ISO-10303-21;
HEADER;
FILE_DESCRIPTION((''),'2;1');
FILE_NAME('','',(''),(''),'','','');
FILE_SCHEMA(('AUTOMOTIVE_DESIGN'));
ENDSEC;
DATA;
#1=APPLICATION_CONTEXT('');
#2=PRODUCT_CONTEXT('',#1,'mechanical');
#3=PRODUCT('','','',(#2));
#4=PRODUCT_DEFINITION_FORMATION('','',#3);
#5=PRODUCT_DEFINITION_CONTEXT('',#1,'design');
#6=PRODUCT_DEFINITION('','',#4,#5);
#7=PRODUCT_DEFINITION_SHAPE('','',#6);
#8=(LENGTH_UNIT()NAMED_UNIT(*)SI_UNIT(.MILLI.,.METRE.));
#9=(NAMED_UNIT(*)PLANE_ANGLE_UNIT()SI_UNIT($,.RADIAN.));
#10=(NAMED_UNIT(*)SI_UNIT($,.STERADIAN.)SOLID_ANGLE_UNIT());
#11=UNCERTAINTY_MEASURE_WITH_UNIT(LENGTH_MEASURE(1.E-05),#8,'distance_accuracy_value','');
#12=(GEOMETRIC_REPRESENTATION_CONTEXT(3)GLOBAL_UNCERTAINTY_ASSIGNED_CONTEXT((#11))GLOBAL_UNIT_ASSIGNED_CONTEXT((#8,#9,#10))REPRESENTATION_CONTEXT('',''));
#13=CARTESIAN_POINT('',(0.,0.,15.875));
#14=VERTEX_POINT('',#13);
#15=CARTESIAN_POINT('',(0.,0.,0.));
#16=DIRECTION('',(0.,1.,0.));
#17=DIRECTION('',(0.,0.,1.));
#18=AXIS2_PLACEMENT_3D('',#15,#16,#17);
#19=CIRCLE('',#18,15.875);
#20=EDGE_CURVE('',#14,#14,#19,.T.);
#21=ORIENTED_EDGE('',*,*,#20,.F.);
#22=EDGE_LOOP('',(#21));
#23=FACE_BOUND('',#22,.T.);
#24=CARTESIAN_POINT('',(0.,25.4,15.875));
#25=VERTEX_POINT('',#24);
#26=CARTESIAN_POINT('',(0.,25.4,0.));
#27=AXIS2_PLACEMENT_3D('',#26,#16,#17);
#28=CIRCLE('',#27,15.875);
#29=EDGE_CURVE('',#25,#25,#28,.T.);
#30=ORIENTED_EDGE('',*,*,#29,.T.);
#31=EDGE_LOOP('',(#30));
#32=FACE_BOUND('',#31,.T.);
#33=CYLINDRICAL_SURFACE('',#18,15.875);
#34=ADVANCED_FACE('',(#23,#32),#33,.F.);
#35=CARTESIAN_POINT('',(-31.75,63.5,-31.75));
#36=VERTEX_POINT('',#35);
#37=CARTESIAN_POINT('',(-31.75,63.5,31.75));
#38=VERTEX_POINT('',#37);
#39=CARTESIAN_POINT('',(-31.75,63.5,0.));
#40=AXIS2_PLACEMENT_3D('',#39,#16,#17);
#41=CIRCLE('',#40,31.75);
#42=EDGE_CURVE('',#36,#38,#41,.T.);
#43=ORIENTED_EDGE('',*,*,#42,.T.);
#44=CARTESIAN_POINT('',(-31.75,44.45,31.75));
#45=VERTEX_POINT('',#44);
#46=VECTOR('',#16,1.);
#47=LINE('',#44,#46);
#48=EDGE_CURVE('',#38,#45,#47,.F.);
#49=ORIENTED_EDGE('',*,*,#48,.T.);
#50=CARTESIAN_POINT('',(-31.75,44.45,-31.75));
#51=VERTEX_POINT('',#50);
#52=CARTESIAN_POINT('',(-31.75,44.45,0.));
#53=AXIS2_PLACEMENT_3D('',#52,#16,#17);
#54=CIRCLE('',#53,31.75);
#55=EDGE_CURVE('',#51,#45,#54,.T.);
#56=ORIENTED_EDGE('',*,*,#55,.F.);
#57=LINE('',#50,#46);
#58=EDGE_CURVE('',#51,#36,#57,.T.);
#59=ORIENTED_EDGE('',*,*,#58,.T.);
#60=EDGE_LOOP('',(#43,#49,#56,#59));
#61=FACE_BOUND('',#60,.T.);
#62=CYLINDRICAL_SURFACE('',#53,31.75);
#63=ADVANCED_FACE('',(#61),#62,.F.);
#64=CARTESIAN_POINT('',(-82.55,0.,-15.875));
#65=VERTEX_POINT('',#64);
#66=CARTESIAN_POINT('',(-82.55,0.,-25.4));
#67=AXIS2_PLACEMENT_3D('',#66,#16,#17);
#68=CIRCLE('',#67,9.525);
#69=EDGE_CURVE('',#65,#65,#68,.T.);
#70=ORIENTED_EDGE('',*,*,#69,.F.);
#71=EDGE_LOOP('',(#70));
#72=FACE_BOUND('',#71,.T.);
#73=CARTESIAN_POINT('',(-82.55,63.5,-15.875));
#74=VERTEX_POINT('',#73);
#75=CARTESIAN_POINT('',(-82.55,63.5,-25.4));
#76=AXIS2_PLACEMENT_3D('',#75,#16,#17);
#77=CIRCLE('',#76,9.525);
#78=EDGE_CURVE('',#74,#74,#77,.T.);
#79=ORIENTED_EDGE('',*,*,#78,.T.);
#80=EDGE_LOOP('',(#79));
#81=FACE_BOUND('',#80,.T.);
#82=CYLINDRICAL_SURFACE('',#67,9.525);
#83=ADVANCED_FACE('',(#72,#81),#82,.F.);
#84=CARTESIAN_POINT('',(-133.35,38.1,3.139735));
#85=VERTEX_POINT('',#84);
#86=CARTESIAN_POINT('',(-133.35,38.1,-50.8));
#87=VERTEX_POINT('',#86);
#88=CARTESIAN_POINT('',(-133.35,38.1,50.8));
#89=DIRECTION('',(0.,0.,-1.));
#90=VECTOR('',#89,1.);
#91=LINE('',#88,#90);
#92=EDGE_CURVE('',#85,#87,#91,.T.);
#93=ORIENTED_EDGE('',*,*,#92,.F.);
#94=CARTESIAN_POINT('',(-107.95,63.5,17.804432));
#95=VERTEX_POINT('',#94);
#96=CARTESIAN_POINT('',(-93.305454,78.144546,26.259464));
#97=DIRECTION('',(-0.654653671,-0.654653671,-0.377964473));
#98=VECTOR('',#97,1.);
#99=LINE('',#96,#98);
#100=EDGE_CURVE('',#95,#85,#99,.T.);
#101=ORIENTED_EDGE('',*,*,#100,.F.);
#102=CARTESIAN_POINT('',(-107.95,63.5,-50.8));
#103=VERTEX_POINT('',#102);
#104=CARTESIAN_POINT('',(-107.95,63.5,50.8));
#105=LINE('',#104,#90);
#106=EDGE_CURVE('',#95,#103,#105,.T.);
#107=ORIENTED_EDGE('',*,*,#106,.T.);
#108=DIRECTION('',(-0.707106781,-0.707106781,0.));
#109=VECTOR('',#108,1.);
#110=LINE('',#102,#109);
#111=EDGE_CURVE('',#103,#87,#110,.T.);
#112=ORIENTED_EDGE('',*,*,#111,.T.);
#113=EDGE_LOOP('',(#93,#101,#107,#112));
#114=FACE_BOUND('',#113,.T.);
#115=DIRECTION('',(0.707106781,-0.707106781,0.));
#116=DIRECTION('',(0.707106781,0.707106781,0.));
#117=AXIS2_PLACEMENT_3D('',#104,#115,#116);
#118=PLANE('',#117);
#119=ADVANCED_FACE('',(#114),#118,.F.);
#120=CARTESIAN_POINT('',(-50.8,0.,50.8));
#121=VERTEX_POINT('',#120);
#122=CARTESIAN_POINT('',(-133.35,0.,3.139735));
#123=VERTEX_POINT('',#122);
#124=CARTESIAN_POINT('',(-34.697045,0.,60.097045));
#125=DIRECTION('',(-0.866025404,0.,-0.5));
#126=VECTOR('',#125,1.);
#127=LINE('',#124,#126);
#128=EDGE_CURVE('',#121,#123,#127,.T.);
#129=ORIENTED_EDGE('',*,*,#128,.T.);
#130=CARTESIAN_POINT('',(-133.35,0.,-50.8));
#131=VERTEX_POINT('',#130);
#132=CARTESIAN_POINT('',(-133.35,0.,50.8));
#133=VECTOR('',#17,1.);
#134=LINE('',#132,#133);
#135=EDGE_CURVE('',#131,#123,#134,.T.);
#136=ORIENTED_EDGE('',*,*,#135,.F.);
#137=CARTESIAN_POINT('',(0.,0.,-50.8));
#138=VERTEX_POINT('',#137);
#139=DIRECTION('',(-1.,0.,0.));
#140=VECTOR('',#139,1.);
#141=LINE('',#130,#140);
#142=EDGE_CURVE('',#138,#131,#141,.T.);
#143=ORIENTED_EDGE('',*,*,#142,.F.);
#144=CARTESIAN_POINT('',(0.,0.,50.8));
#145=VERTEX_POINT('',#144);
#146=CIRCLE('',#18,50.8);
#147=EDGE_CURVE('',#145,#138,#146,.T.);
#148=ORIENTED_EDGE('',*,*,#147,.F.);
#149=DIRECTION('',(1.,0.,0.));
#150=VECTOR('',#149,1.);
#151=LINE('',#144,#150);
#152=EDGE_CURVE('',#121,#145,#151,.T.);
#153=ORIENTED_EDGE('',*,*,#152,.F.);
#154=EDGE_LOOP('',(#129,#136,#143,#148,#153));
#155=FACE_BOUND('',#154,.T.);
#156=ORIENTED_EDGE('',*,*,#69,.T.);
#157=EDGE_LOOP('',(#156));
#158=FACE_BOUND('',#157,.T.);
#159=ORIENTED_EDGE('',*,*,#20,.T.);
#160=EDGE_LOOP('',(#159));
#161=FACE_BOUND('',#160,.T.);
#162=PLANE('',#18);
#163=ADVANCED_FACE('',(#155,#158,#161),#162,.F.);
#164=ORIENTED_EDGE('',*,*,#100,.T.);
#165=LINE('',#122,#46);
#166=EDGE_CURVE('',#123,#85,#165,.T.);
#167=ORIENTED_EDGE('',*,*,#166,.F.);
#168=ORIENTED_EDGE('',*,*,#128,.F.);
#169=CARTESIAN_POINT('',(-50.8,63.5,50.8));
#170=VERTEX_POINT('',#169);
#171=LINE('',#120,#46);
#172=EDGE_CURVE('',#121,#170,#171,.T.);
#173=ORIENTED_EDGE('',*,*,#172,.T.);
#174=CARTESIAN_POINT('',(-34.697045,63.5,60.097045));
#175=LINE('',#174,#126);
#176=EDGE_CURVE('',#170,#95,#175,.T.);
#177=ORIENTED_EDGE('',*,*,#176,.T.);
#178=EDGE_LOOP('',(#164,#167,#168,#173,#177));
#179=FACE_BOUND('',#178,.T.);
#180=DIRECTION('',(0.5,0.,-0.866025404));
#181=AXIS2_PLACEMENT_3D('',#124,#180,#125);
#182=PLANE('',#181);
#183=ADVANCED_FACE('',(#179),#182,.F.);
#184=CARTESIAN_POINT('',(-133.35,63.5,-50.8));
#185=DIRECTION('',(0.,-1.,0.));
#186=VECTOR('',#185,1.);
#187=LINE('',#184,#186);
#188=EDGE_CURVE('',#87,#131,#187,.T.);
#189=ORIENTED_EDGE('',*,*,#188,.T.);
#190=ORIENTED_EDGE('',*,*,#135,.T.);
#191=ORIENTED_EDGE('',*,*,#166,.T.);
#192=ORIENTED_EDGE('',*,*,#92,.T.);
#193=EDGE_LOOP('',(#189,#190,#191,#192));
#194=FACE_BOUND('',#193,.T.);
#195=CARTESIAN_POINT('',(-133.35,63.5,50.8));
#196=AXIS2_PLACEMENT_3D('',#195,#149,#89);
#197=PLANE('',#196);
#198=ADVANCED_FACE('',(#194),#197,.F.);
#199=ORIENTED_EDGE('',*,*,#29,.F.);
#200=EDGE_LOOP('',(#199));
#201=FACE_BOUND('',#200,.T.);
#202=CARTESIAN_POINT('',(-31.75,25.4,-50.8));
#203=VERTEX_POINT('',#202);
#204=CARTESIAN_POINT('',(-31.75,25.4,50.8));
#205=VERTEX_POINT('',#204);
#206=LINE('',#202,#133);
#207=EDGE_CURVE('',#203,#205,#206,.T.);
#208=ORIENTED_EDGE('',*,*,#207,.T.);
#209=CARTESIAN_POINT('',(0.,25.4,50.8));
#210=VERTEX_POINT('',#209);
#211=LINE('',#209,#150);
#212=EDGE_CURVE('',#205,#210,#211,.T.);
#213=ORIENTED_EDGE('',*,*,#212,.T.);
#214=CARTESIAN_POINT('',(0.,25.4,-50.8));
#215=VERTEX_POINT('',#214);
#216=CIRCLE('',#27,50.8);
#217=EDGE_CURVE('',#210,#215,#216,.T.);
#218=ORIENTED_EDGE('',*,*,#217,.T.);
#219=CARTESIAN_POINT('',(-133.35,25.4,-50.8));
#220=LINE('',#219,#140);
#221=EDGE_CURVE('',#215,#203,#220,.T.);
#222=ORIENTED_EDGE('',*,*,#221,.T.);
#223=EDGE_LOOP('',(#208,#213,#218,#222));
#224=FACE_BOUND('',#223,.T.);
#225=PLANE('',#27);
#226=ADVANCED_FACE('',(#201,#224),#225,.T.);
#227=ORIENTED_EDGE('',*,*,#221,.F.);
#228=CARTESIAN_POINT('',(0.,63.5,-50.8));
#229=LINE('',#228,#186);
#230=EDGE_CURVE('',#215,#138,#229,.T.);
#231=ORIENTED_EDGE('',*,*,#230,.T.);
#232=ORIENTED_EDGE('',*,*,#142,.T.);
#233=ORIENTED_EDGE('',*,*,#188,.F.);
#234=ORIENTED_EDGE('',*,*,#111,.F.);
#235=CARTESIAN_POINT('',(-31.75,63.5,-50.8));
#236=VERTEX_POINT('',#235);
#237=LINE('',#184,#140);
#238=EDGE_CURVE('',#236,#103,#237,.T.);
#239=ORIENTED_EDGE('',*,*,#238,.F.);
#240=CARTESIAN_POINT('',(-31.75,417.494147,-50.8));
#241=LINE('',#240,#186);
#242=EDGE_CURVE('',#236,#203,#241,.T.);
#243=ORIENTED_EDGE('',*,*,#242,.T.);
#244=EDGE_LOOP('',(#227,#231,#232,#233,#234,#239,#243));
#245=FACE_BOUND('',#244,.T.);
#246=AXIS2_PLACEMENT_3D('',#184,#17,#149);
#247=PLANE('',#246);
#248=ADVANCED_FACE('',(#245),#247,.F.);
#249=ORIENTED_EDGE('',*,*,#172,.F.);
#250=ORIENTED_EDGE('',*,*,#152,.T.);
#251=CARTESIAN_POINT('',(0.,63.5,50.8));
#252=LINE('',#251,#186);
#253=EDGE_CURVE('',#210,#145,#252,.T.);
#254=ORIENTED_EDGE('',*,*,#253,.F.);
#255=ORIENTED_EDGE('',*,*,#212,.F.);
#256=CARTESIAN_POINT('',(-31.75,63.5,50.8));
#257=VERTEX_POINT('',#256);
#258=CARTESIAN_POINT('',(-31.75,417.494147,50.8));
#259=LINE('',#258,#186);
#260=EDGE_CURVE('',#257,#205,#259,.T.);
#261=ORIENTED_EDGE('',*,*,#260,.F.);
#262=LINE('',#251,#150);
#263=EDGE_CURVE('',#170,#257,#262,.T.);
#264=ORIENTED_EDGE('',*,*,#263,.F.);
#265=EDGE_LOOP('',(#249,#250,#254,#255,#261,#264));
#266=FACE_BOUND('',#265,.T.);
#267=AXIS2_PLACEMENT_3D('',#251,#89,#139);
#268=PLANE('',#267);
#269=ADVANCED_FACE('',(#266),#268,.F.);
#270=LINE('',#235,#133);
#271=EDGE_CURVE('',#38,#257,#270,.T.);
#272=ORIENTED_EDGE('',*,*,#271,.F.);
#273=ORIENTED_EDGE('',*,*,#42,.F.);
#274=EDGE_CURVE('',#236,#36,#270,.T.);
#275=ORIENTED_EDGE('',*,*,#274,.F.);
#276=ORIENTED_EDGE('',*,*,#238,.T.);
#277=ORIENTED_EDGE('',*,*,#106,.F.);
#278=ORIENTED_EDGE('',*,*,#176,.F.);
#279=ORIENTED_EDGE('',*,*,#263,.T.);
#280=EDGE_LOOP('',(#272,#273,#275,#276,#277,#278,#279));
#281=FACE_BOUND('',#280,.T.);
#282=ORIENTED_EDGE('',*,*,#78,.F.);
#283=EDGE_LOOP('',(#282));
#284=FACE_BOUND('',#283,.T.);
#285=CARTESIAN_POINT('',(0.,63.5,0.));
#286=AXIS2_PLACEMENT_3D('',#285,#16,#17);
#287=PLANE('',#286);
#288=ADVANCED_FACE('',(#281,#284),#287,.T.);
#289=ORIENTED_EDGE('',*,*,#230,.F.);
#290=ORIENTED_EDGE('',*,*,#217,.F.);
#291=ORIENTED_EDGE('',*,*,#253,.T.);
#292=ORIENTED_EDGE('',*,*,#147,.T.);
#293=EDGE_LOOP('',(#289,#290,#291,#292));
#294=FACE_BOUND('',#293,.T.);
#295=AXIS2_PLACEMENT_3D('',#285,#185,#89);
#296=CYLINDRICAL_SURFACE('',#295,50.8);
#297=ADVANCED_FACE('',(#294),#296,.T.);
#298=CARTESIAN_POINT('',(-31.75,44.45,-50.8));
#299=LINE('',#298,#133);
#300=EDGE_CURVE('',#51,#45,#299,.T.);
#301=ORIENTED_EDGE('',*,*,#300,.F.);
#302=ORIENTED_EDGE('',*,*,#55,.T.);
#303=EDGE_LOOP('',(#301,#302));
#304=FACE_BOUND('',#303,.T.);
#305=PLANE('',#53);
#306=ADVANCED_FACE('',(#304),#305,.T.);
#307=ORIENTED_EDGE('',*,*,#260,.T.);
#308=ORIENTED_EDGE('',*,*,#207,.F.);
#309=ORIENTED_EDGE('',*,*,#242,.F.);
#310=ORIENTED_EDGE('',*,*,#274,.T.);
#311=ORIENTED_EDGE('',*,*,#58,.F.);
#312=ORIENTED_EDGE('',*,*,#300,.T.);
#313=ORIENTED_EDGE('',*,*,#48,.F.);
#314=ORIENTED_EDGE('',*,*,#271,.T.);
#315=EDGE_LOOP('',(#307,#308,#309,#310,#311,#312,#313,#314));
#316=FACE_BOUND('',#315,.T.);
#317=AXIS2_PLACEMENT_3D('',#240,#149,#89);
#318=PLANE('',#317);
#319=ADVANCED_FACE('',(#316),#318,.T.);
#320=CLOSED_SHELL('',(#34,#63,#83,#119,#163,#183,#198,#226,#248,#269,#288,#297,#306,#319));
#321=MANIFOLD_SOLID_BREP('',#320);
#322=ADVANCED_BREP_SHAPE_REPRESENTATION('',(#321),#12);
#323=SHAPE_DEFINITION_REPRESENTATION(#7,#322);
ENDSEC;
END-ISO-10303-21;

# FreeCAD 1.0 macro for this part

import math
import FreeCAD as App
import Part
import Sketcher
from FreeCAD import Vector
Q = App.Units.Quantity

doc = App.newDocument("Part")
body = doc.addObject("PartDesign::Body", "Body")

# Sketch on XZ plane
sketch1 = doc.addObject("Sketcher::SketchObject", "Sketch")
body.addObject(sketch1)
sketch1.AttachmentSupport = (doc.XZ_Plane, [""])
sketch1.MapMode = "FlatFace"
sketch1.addGeometry([
    Part.LineSegment(Vector(-133.35, 50.8, 0), Vector(0, 50.8, 0)),
    Part.ArcOfCircle(Part.Circle(Vector(0, 0, 0), Vector(0, 0, 1), 50.8), math.radians(-90), math.radians(90)),
    Part.LineSegment(Vector(0, -50.8, 0), Vector(-133.35, -50.8, 0)),
    Part.LineSegment(Vector(-133.35, -50.8, 0), Vector(-133.35, 50.8, 0)),
], False)
sketch1.addConstraint([
    Sketcher.Constraint("Tangent", 0, 2, 1, 2),
    Sketcher.Constraint("Tangent", 1, 1, 2, 1),
    Sketcher.Constraint("Coincident", 2, 2, 3, 1),
    Sketcher.Constraint("Coincident", 3, 2, 0, 1),
    Sketcher.Constraint("Horizontal", 0),
    Sketcher.Constraint("Horizontal", 2),
    Sketcher.Constraint("Vertical", 3),
    Sketcher.Constraint("Coincident", 1, 3, -1, 1),
    Sketcher.Constraint("Radius", 1, Q("2 in")),
    Sketcher.Constraint("DistanceX", 0, 1, 0, 2, Q("5.25 in")),
])
pad1 = doc.addObject("PartDesign::Pad", "Pad")
body.addObject(pad1)
pad1.Profile = sketch1
pad1.Length = Q("2.5 in")
pad1.Reversed = True

# Sketch on XZ plane
sketch2 = doc.addObject("Sketcher::SketchObject", "Sketch001")
body.addObject(sketch2)
sketch2.AttachmentSupport = (doc.XZ_Plane, [""])
sketch2.MapMode = "FlatFace"
sketch2.AttachmentOffset = App.Placement(Vector(0, 0, -2.5 * 25.4), App.Rotation())
sketch2.addGeometry([
    Part.LineSegment(Vector(-31.75, -348.168196, 0), Vector(-31.75, 348.168196, 0)),
    Part.LineSegment(Vector(-31.75, 348.168196, 0), Vector(562.986392, 348.168196, 0)),
    Part.LineSegment(Vector(562.986392, 348.168196, 0), Vector(562.986392, -348.168196, 0)),
    Part.LineSegment(Vector(562.986392, -348.168196, 0), Vector(-31.75, -348.168196, 0)),
], False)
sketch2.addConstraint([
    Sketcher.Constraint("Coincident", 0, 2, 1, 1),
    Sketcher.Constraint("Coincident", 1, 2, 2, 1),
    Sketcher.Constraint("Coincident", 2, 2, 3, 1),
    Sketcher.Constraint("Coincident", 3, 2, 0, 1),
    Sketcher.Constraint("Vertical", 0),
    Sketcher.Constraint("Horizontal", 1),
    Sketcher.Constraint("Vertical", 2),
    Sketcher.Constraint("Horizontal", 3),
    Sketcher.Constraint("DistanceX", 0, 2, -1, 1, Q("1.25 in")),
    Sketcher.Constraint("DistanceX", 1, 1, 1, 2, Q("594.736392 mm")),
    Sketcher.Constraint("DistanceY", 0, 1, 0, 2, Q("696.336392 mm")),
    Sketcher.Constraint("DistanceY", -1, 1, 0, 2, Q("348.168196 mm")),
])
pocket1 = doc.addObject("PartDesign::Pocket", "Pocket")
body.addObject(pocket1)
pocket1.Profile = sketch2
pocket1.Type = "TwoLengths"
pocket1.Length = 157.189348
pocket1.Length2 = Q("1.5 in")

# Sketch on XZ plane
sketch3 = doc.addObject("Sketcher::SketchObject", "Sketch002")
body.addObject(sketch3)
sketch3.AttachmentSupport = (doc.XZ_Plane, [""])
sketch3.MapMode = "FlatFace"
sketch3.AttachmentOffset = App.Placement(Vector(0, 0, -2.5 * 25.4), App.Rotation())
sketch3.addGeometry([
    Part.LineSegment(Vector(-133.35, 50.8, 0), Vector(-50.8, 50.8, 0)),
    Part.LineSegment(Vector(-50.8, 50.8, 0), Vector(-133.35, 3.139735, 0)),
    Part.LineSegment(Vector(-133.35, 3.139735, 0), Vector(-133.35, 50.8, 0)),
], False)
sketch3.addConstraint([
    Sketcher.Constraint("Coincident", 0, 2, 1, 1),
    Sketcher.Constraint("Coincident", 1, 2, 2, 1),
    Sketcher.Constraint("Coincident", 2, 2, 0, 1),
    Sketcher.Constraint("Horizontal", 0),
    Sketcher.Constraint("Vertical", 2),
    Sketcher.Constraint("DistanceX", 0, 2, -1, 1, Q("2 in")),
    Sketcher.Constraint("DistanceY", -1, 1, 0, 2, Q("2 in")),
    Sketcher.Constraint("Angle", 1, Q("-150 deg")),
    Sketcher.Constraint("DistanceX", 0, 1, 0, 2, Q("3.25 in")),
])
pocket2 = doc.addObject("PartDesign::Pocket", "Pocket001")
body.addObject(pocket2)
pocket2.Profile = sketch3
pocket2.Type = "ThroughAll"
pocket2.Reversed = True

# Sketch on XY plane
sketch4 = doc.addObject("Sketcher::SketchObject", "Sketch003")
body.addObject(sketch4)
sketch4.AttachmentSupport = (doc.XY_Plane, [""])
sketch4.MapMode = "FlatFace"
sketch4.AttachmentOffset = App.Placement(Vector(0, 0, -2 * 25.4), App.Rotation())
sketch4.addGeometry([
    Part.LineSegment(Vector(-133.35, 63.5, 0), Vector(-107.95, 63.5, 0)),
    Part.LineSegment(Vector(-107.95, 63.5, 0), Vector(-133.35, 38.1, 0)),
    Part.LineSegment(Vector(-133.35, 38.1, 0), Vector(-133.35, 63.5, 0)),
], False)
sketch4.addConstraint([
    Sketcher.Constraint("Coincident", 0, 2, 1, 1),
    Sketcher.Constraint("Coincident", 1, 2, 2, 1),
    Sketcher.Constraint("Coincident", 2, 2, 0, 1),
    Sketcher.Constraint("Horizontal", 0),
    Sketcher.Constraint("Vertical", 2),
    Sketcher.Constraint("Equal", 0, 2),
    Sketcher.Constraint("DistanceX", 0, 1, 0, 2, Q("1 in")),
    Sketcher.Constraint("DistanceY", -1, 1, 0, 2, Q("2.5 in")),
    Sketcher.Constraint("DistanceX", 0, 2, -1, 1, Q("4.25 in")),
])
pocket3 = doc.addObject("PartDesign::Pocket", "Pocket002")
body.addObject(pocket3)
pocket3.Profile = sketch4
pocket3.Type = "ThroughAll"
pocket3.Reversed = True

# Sketch on XZ plane
sketch5 = doc.addObject("Sketcher::SketchObject", "Sketch004")
body.addObject(sketch5)
sketch5.AttachmentSupport = (doc.XZ_Plane, [""])
sketch5.MapMode = "FlatFace"
sketch5.AttachmentOffset = App.Placement(Vector(0, 0, -2.5 * 25.4), App.Rotation())
sketch5.addGeometry(Part.Circle(Vector(-31.75, 0, 0), Vector(0, 0, 1), 31.75), False)
sketch5.addConstraint([
    Sketcher.Constraint("PointOnObject", 0, 3, -1),
    Sketcher.Constraint("Diameter", 0, Q("2.5 in")),
    Sketcher.Constraint("DistanceX", 0, 3, -1, 1, Q("1.25 in")),
])
pocket4 = doc.addObject("PartDesign::Pocket", "Pocket003")
body.addObject(pocket4)
pocket4.Profile = sketch5
pocket4.Length = Q("0.75 in")
pocket4.Reversed = True

# Sketch on XZ plane
sketch6 = doc.addObject("Sketcher::SketchObject", "Sketch005")
body.addObject(sketch6)
sketch6.AttachmentSupport = (doc.XZ_Plane, [""])
sketch6.MapMode = "FlatFace"
sketch6.AttachmentOffset = App.Placement(Vector(0, 0, -2.5 * 25.4), App.Rotation())
sketch6.addGeometry(Part.Circle(Vector(-82.55, -25.4, 0), Vector(0, 0, 1), 9.525), False)
sketch6.addConstraint([
    Sketcher.Constraint("Diameter", 0, Q("0.75 in")),
    Sketcher.Constraint("DistanceY", 0, 3, -1, 1, Q("1 in")),
    Sketcher.Constraint("DistanceX", 0, 3, -1, 1, Q("3.25 in")),
])
pocket5 = doc.addObject("PartDesign::Pocket", "Pocket004")
body.addObject(pocket5)
pocket5.Profile = sketch6
pocket5.Type = "ThroughAll"
pocket5.Reversed = True

# Sketch on XZ plane
sketch7 = doc.addObject("Sketcher::SketchObject", "Sketch006")
body.addObject(sketch7)
sketch7.AttachmentSupport = (doc.XZ_Plane, [""])
sketch7.MapMode = "FlatFace"
sketch7.AttachmentOffset = App.Placement(Vector(0, 0, -1 * 25.4), App.Rotation())
sketch7.addGeometry(Part.Circle(Vector(0, 0, 0), Vector(0, 0, 1), 15.875), False)
sketch7.addConstraint([
    Sketcher.Constraint("Coincident", 0, 3, -1, 1),
    Sketcher.Constraint("Diameter", 0, Q("1.25 in")),
])
pocket6 = doc.addObject("PartDesign::Pocket", "Pocket005")
body.addObject(pocket6)
pocket6.Profile = sketch7
pocket6.Type = "ThroughAll"
pocket6.Reversed = True

doc.recompute()
